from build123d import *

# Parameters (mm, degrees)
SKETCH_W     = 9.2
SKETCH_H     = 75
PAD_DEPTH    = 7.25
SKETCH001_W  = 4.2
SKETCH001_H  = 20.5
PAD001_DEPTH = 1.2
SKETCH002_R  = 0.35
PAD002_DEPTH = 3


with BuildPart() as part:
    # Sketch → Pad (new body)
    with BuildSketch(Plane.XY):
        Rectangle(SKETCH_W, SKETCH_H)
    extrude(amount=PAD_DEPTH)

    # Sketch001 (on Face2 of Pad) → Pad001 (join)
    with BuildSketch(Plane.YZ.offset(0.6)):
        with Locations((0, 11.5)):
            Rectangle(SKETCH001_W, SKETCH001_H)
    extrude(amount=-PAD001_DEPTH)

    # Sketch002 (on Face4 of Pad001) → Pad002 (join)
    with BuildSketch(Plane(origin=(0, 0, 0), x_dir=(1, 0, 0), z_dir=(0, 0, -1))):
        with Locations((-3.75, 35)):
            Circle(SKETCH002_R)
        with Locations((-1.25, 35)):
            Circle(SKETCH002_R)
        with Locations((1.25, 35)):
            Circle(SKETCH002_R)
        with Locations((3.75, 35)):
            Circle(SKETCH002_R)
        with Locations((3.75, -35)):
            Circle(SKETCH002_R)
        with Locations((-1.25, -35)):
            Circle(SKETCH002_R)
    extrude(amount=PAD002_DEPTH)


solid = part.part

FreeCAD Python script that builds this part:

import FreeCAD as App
import Part
import Sketcher


def add_polygon(sketch, points):
    """Adds a closed chain of lines whose ends are joined by coincident constraints."""
    first, n = sketch.GeometryCount, len(points)
    for a, b in zip(points, points[1:] + points[:1]):
        sketch.addGeometry(Part.LineSegment(App.Vector(*a, 0), App.Vector(*b, 0)), False)
    for i in range(n):
        sketch.addConstraint(Sketcher.Constraint("Coincident", first + i, 2, first + (i + 1) % n, 1))

doc = App.newDocument("Part")
body = doc.addObject("PartDesign::Body", "Body")

# Sketch on XY plane
sketch1 = doc.addObject("Sketcher::SketchObject", "Sketch")
body.addObject(sketch1)
sketch1.AttachmentSupport = (doc.XY_Plane, [""])
sketch1.MapMode = "FlatFace"
add_polygon(sketch1, [(-5, 38), (-5, -38), (5, -38), (5, 38)])  # lines 0-3
sketch1.addConstraint(Sketcher.Constraint("Vertical", 0))
sketch1.addConstraint(Sketcher.Constraint("Horizontal", 1))
sketch1.addConstraint(Sketcher.Constraint("Vertical", 2))
sketch1.addConstraint(Sketcher.Constraint("Horizontal", 3))
sketch1.addConstraint(Sketcher.Constraint("Symmetric", 0, 2, 2, 2, -1, 1))
sketch1.addConstraint(Sketcher.Constraint("DistanceY", 0, 2, 0, 1, 75.0))
sketch1.addConstraint(Sketcher.Constraint("DistanceX", 1, 1, 1, 2, 9.2))
pad1 = doc.addObject("PartDesign::Pad", "Pad")
body.addObject(pad1)
pad1.Profile = sketch1
pad1.Length = 7.25

# Sketch on YZ plane
sketch2 = doc.addObject("Sketcher::SketchObject", "Sketch001")
body.addObject(sketch2)
sketch2.AttachmentSupport = (doc.YZ_Plane, [""])
sketch2.MapMode = "FlatFace"
sketch2.AttachmentOffset = App.Placement(App.Vector(0, 0, 0.6), App.Rotation())
add_polygon(sketch2, [(-2.1, 21.8), (-2.1, 1.2), (2.1, 1.2), (2.1, 21.8)])  # lines 0-3
sketch2.addConstraint(Sketcher.Constraint("Vertical", 0))
sketch2.addConstraint(Sketcher.Constraint("Horizontal", 1))
sketch2.addConstraint(Sketcher.Constraint("Vertical", 2))
sketch2.addConstraint(Sketcher.Constraint("Horizontal", 3))
sketch2.addConstraint(Sketcher.Constraint("DistanceX", 1, 1, 1, 2, 4.2))
sketch2.addConstraint(Sketcher.Constraint("DistanceY", 0, 2, 0, 1, 20.5))
sketch2.addConstraint(Sketcher.Constraint("DistanceX", 0, 2, -1, 1, 2.1))
sketch2.addConstraint(Sketcher.Constraint("DistanceY", -1, 1, 0, 2, 1.25))
pad2 = doc.addObject("PartDesign::Pad", "Pad001")
body.addObject(pad2)
pad2.Profile = sketch2
pad2.Length = 1.2
pad2.Reversed = True

# Sketch on XY plane
sketch3 = doc.addObject("Sketcher::SketchObject", "Sketch002")
body.addObject(sketch3)
sketch3.AttachmentSupport = (doc.XY_Plane, [""])
sketch3.MapMode = "FlatFace"
sketch3.addGeometry(Part.Circle(App.Vector(-3.75, -35, 0), App.Vector(0, 0, 1), 0.35), False)
sketch3.addGeometry(Part.Circle(App.Vector(-1.25, -35, 0), App.Vector(0, 0, 1), 0.35), False)
sketch3.addGeometry(Part.Circle(App.Vector(1.25, -35, 0), App.Vector(0, 0, 1), 0.35), False)
sketch3.addGeometry(Part.Circle(App.Vector(3.75, -35, 0), App.Vector(0, 0, 1), 0.35), False)
sketch3.addGeometry(Part.Circle(App.Vector(3.75, 35, 0), App.Vector(0, 0, 1), 0.35), False)
sketch3.addGeometry(Part.Circle(App.Vector(-1.25, 35, 0), App.Vector(0, 0, 1), 0.35), False)
sketch3.addConstraint(Sketcher.Constraint("Equal", 0, 1))
sketch3.addConstraint(Sketcher.Constraint("Equal", 1, 2))
sketch3.addConstraint(Sketcher.Constraint("Equal", 2, 3))
sketch3.addConstraint(Sketcher.Constraint("Equal", 3, 4))
sketch3.addConstraint(Sketcher.Constraint("Equal", 4, 5))
sketch3.addConstraint(Sketcher.Constraint("Symmetric", 0, 3, 4, 3, -1, 1))
sketch3.addConstraint(Sketcher.Constraint("Symmetric", 2, 3, 5, 3, -1, 1))
sketch3.addConstraint(Sketcher.Constraint("Symmetric", 1, 3, 2, 3, -2))
sketch3.addConstraint(Sketcher.Constraint("Symmetric", 0, 3, 3, 3, -2))
sketch3.addConstraint(Sketcher.Constraint("Horizontal", 0, 3, 1, 3))
sketch3.addConstraint(Sketcher.Constraint("Diameter", 0, 0.7))
sketch3.addConstraint(Sketcher.Constraint("DistanceY", 0, 3, -1, 1, 35.0))
sketch3.addConstraint(Sketcher.Constraint("DistanceX", 0, 3, 2, 3, 5.0))
sketch3.addConstraint(Sketcher.Constraint("DistanceX", 0, 3, 1, 3, 2.5))
pad3 = doc.addObject("PartDesign::Pad", "Pad002")
body.addObject(pad3)
pad3.Profile = sketch3
pad3.Length = 3
pad3.Reversed = True

doc.recompute()
